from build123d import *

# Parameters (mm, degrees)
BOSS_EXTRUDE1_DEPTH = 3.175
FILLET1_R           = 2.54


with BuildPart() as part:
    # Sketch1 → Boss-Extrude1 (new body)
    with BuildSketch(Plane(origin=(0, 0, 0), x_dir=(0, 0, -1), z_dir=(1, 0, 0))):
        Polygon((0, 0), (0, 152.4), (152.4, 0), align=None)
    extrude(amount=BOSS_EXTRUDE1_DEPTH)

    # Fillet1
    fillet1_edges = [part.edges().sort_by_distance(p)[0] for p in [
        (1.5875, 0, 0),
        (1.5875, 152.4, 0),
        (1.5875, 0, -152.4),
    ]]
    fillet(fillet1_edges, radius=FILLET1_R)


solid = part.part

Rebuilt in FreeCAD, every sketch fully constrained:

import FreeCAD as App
import Part
import Sketcher
from FreeCAD import Vector
Q = App.Units.Quantity


def edges_at(feature, points):
    """Names of the edges that pass closest to the given points."""
    edges = feature.Shape.Edges
    near = lambda p: min(range(len(edges)), key=lambda i: edges[i].distToShape(Part.Vertex(*p))[0])
    return sorted({f"Edge{near(p) + 1}" for p in points})


def add_polygon(sketch, points):
    """Adds a closed chain of lines whose ends are joined by coincident constraints."""
    first, n = sketch.GeometryCount, len(points)
    for a, b in zip(points, points[1:] + points[:1]):
        sketch.addGeometry(Part.LineSegment(App.Vector(*a, 0), App.Vector(*b, 0)), False)
    for i in range(n):
        sketch.addConstraint(Sketcher.Constraint("Coincident", first + i, 2, first + (i + 1) % n, 1))

doc = App.newDocument("Part")
body = doc.addObject("PartDesign::Body", "Body")

sketch1 = body.newObject("Sketcher::SketchObject", "Sketch")
sketch1.AttachmentSupport = (doc.getObject("YZ_Plane"), [""])
sketch1.MapMode = "FlatFace"
add_polygon(sketch1, [(152, 0), (0, 0), (0, -152)])
sketch1.addConstraint([
    Sketcher.Constraint("Horizontal", 0),
    Sketcher.Constraint("Vertical", 1),
    Sketcher.Constraint("Coincident", 0, 2, -1, 1),
    Sketcher.Constraint("Equal", 0, 1),
    Sketcher.Constraint("DistanceX", 0, 2, 0, 1, Q("6 in")),
])
pad1 = body.newObject("PartDesign::Pad", "Pad")
pad1.Profile = sketch1
pad1.Length = Q("0.125 in")
doc.recompute()

fillet = body.newObject("PartDesign::Fillet", "Fillet")
fillet.Base = (pad1, edges_at(pad1, [(1.587, 0, 0), (1.587, 152.4, 0), (1.587, 0, -152.4)]))
fillet.Radius = Q("0.1 in")

doc.recompute()
